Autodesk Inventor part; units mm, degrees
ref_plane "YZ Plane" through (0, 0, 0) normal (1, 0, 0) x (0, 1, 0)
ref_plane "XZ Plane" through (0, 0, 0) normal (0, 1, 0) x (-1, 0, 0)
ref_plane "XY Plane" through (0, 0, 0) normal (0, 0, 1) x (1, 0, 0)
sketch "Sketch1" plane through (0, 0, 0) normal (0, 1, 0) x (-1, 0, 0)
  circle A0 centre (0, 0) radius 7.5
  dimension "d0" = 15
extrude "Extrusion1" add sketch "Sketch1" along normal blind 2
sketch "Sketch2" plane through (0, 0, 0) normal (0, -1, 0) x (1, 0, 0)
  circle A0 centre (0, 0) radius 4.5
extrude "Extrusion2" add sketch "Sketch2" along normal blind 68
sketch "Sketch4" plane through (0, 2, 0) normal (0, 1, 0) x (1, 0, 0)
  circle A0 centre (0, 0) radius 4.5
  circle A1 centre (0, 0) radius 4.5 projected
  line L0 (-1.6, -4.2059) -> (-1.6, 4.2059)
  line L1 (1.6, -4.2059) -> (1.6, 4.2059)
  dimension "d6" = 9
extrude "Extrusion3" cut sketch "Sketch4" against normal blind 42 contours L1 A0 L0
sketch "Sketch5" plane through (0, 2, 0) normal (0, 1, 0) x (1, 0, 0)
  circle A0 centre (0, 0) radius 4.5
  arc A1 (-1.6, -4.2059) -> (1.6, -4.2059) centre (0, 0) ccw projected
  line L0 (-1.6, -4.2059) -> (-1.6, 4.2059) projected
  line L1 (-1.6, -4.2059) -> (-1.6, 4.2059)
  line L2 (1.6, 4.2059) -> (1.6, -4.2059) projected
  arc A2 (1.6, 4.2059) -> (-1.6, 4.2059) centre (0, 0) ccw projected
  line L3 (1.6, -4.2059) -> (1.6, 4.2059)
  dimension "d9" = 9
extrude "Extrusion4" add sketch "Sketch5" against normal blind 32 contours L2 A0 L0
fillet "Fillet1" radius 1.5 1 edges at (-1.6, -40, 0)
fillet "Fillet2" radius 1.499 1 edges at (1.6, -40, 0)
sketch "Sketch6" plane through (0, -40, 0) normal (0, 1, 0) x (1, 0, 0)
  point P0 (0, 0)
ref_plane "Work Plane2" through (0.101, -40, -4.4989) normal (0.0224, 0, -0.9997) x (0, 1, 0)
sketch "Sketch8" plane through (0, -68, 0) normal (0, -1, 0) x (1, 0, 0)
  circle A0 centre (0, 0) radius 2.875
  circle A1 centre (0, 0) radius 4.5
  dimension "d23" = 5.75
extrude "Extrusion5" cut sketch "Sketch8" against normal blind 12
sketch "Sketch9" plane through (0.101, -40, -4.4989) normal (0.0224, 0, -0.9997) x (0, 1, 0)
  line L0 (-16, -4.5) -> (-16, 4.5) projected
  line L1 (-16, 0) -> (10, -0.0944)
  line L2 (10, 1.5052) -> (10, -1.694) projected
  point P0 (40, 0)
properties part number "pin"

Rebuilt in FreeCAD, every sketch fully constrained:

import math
import FreeCAD as App
import Part
import Sketcher


def edges_at(feature, points):
    """Names of the edges that pass closest to the given points."""
    edges = feature.Shape.Edges
    near = lambda p: min(range(len(edges)), key=lambda i: edges[i].distToShape(Part.Vertex(*p))[0])
    return sorted({f"Edge{near(p) + 1}" for p in points})

doc = App.newDocument("Part")
body = doc.addObject("PartDesign::Body", "Body")

sketch1 = body.newObject("Sketcher::SketchObject", "Sketch")
sketch1.AttachmentSupport = (doc.getObject("XZ_Plane"), [""])
sketch1.MapMode = "FlatFace"
sketch1.addGeometry(Part.Circle(App.Vector(0, 0, 0), App.Vector(0, 0, 1), 8), False)
sketch1.addConstraint([
    Sketcher.Constraint("Coincident", 0, 3, -1, 1),
    Sketcher.Constraint("Diameter", 0, 15.0),
])
pad1 = body.newObject("PartDesign::Pad", "Pad")
pad1.Profile = sketch1
pad1.Length = 2
pad1.Reversed = True

sketch2 = body.newObject("Sketcher::SketchObject", "Sketch001")
sketch2.AttachmentSupport = (doc.getObject("XZ_Plane"), [""])
sketch2.MapMode = "FlatFace"
sketch2.addGeometry(Part.Circle(App.Vector(0, 0, 0), App.Vector(0, 0, 1), 4.5), False)
sketch2.addConstraint([
    Sketcher.Constraint("Coincident", 0, 3, -1, 1),
    Sketcher.Constraint("Diameter", 0, 9.0),
])
pad2 = body.newObject("PartDesign::Pad", "Pad001")
pad2.Profile = sketch2
pad2.Length = 68

sketch3 = body.newObject("Sketcher::SketchObject", "Sketch002")
sketch3.AttachmentSupport = (doc.getObject("XZ_Plane"), [""])
sketch3.MapMode = "FlatFace"
sketch3.AttachmentOffset = App.Placement(App.Vector(0, 0, -2), App.Rotation())
sketch3.addGeometry([
    Part.LineSegment(App.Vector(1.6, 4.2, 0), App.Vector(1.6, -4.2, 0)),
    Part.ArcOfCircle(Part.Circle(App.Vector(0, 0, 0), App.Vector(0, 0, 1), 4.5), math.radians(-111), math.radians(-69)),
    Part.LineSegment(App.Vector(-1.6, -4.2, 0), App.Vector(-1.6, 4.2, 0)),
    Part.ArcOfCircle(Part.Circle(App.Vector(0, 0, 0), App.Vector(0, 0, 1), 4.5), math.radians(69), math.radians(111)),
], False)
sketch3.addConstraint([
    Sketcher.Constraint("Coincident", 0, 2, 1, 2),
    Sketcher.Constraint("Coincident", 1, 1, 2, 1),
    Sketcher.Constraint("Coincident", 2, 2, 3, 2),
    Sketcher.Constraint("Coincident", 3, 1, 0, 1),
    Sketcher.Constraint("Vertical", 0),
    Sketcher.Constraint("Vertical", 2),
    Sketcher.Constraint("Coincident", 1, 3, -1, 1),
    Sketcher.Constraint("Coincident", 3, 3, -1, 1),
    Sketcher.Constraint("Equal", 1, 3),
    Sketcher.Constraint("Horizontal", 0, 2, 1, 1),
    Sketcher.Constraint("Radius", 1, 4.5),
    Sketcher.Constraint("DistanceX", -1, 1, 0, 2, 1.6),
])
pocket1 = body.newObject("PartDesign::Pocket", "Pocket")
pocket1.Profile = sketch3
pocket1.Length = 42
pocket1.Reversed = True

sketch4 = body.newObject("Sketcher::SketchObject", "Sketch003")
sketch4.AttachmentSupport = (doc.getObject("XZ_Plane"), [""])
sketch4.MapMode = "FlatFace"
sketch4.AttachmentOffset = App.Placement(App.Vector(0, 0, -2), App.Rotation())
sketch4.addGeometry([
    Part.LineSegment(App.Vector(1.6, 4.2, 0), App.Vector(1.6, -4.2, 0)),
    Part.ArcOfCircle(Part.Circle(App.Vector(0, 0, 0), App.Vector(0, 0, 1), 4.5), math.radians(-111), math.radians(-69)),
    Part.LineSegment(App.Vector(-1.6, -4.2, 0), App.Vector(-1.6, 4.2, 0)),
    Part.ArcOfCircle(Part.Circle(App.Vector(0, 0, 0), App.Vector(0, 0, 1), 4.5), math.radians(69), math.radians(111)),
], False)
sketch4.addConstraint([
    Sketcher.Constraint("Coincident", 0, 2, 1, 2),
    Sketcher.Constraint("Coincident", 1, 1, 2, 1),
    Sketcher.Constraint("Coincident", 2, 2, 3, 2),
    Sketcher.Constraint("Coincident", 3, 1, 0, 1),
    Sketcher.Constraint("Vertical", 0),
    Sketcher.Constraint("Vertical", 2),
    Sketcher.Constraint("Coincident", 1, 3, -1, 1),
    Sketcher.Constraint("Coincident", 3, 3, -1, 1),
    Sketcher.Constraint("Equal", 1, 3),
    Sketcher.Constraint("Horizontal", 0, 2, 1, 1),
    Sketcher.Constraint("Radius", 1, 4.5),
    Sketcher.Constraint("DistanceX", -1, 1, 0, 2, 1.6),
])
pad3 = body.newObject("PartDesign::Pad", "Pad002")
pad3.Profile = sketch4
pad3.Length = 32
doc.recompute()

fillet = body.newObject("PartDesign::Fillet", "Fillet")
fillet.Base = (pad3, edges_at(pad3, [(-1.6, -40, 0)]))
fillet.Radius = 1.5
doc.recompute()

fillet2 = body.newObject("PartDesign::Fillet", "Fillet001")
fillet2.Base = (fillet, edges_at(fillet, [(1.6, -40, 0)]))
fillet2.Radius = 1.499

sketch5 = body.newObject("Sketcher::SketchObject", "Sketch004")
sketch5.AttachmentSupport = (doc.getObject("XZ_Plane"), [""])
sketch5.MapMode = "FlatFace"
sketch5.AttachmentOffset = App.Placement(App.Vector(0, 0, 68), App.Rotation())
sketch5.addGeometry([
    Part.Circle(App.Vector(0, 0, 0), App.Vector(0, 0, 1), 4.5),
    Part.Circle(App.Vector(0, 0, 0), App.Vector(0, 0, 1), 2.9),
], False)
sketch5.addConstraint([
    Sketcher.Constraint("Coincident", 0, 3, -1, 1),
    Sketcher.Constraint("Coincident", 1, 3, -1, 1),
    Sketcher.Constraint("Diameter", 1, 5.75),
    Sketcher.Constraint("Diameter", 0, 9.0),
])
pocket2 = body.newObject("PartDesign::Pocket", "Pocket001")
pocket2.Profile = sketch5
pocket2.Length = 12

doc.recompute()
